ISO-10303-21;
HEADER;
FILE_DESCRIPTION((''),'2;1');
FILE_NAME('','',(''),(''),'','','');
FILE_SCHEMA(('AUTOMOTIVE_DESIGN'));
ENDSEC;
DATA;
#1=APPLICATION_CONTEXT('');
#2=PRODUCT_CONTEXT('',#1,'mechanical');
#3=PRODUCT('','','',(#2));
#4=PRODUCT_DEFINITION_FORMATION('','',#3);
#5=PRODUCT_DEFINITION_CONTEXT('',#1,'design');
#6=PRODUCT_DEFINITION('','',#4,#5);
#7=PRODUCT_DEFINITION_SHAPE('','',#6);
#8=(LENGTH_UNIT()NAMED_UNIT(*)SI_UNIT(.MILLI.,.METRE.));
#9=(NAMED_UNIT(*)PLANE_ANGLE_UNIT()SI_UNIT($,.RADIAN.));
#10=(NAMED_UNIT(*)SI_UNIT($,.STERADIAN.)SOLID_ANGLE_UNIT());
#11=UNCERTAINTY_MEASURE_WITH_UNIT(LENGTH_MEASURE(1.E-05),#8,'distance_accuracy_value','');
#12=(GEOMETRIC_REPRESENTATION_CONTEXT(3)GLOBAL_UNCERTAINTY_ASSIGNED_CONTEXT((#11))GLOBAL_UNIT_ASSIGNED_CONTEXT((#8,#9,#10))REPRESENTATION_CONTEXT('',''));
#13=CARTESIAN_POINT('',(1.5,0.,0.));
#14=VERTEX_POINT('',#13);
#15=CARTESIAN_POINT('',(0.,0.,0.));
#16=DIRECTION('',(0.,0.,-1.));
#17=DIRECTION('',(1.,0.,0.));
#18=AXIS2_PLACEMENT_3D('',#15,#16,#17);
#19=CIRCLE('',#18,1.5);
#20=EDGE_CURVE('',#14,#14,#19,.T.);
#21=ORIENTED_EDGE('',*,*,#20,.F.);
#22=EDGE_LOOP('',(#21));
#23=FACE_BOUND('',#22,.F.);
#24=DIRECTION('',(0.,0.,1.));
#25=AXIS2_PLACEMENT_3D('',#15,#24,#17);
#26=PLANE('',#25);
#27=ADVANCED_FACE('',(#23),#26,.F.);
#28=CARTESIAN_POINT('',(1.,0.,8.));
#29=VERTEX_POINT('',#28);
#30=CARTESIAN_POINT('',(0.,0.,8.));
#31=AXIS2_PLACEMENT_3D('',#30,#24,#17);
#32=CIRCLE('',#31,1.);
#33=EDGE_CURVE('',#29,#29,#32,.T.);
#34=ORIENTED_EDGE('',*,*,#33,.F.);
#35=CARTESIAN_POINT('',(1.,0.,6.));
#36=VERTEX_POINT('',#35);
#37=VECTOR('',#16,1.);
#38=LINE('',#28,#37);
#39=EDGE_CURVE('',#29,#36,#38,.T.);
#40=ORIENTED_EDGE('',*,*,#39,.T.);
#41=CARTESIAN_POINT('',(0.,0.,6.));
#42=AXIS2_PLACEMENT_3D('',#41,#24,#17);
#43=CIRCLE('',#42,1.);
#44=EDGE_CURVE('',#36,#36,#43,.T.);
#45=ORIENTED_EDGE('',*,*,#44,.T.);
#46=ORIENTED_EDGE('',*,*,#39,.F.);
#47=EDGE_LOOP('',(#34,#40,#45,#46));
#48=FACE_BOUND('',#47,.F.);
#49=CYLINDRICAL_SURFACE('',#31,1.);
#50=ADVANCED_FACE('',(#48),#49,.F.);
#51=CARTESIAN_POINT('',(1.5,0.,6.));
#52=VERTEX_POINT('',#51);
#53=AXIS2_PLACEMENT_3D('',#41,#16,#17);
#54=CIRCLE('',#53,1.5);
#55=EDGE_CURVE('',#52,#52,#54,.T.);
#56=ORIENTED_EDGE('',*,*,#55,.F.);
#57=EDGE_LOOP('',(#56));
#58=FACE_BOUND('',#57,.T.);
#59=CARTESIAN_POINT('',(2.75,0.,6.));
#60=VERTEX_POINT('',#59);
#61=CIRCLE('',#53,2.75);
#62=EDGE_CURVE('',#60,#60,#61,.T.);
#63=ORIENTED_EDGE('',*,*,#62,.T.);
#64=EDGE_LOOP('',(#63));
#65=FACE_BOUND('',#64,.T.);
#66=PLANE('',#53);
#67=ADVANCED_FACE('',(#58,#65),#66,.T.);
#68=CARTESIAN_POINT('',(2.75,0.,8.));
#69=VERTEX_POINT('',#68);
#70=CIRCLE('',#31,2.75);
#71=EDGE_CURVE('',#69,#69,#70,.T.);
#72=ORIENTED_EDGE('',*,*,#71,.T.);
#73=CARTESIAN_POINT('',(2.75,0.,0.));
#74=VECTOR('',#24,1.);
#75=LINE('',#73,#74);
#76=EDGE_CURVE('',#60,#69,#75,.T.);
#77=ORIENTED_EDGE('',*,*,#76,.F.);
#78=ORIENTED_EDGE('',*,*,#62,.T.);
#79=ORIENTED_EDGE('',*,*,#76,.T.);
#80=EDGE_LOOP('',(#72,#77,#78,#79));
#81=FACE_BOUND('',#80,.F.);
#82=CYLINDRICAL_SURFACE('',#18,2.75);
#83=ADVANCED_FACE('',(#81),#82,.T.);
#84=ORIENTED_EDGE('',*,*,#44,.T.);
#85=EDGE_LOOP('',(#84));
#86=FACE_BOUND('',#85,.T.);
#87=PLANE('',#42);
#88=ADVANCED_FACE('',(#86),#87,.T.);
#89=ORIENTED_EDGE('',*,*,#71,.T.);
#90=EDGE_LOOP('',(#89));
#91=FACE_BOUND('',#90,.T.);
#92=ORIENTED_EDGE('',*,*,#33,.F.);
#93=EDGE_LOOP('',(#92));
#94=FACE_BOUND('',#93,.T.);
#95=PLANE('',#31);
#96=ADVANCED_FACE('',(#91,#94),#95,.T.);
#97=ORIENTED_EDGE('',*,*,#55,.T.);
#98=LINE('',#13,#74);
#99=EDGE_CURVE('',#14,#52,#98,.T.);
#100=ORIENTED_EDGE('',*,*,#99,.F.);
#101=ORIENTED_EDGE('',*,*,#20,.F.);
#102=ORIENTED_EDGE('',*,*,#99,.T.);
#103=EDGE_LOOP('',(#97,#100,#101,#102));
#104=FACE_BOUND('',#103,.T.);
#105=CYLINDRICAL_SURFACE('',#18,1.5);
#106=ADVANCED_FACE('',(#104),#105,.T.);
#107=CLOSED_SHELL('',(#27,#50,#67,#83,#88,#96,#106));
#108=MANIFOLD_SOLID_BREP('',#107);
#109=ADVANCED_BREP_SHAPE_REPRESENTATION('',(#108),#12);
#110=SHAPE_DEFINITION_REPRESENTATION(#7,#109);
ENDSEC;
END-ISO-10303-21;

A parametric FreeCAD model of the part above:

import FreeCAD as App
import Part
import Sketcher

V = App.Vector

doc = App.newDocument("Part")
body = doc.addObject("PartDesign::Body", "Body")

sketch1 = doc.addObject("Sketcher::SketchObject", "Sketch")
body.addObject(sketch1)
sketch1.AttachmentSupport = (doc.XY_Plane, [""])
sketch1.MapMode = "FlatFace"
sketch1.addGeometry(Part.Circle(V(0, 0, 0), V(0, 0, 1), 2.75), False)
sketch1.addConstraint([
    Sketcher.Constraint("Coincident", 0, 3, -1, 1),
    Sketcher.Constraint("Diameter", 0, 5.5),
])
pad1 = doc.addObject("PartDesign::Pad", "Pad")
body.addObject(pad1)
pad1.Profile = sketch1
pad1.Length = 8

sketch2 = doc.addObject("Sketcher::SketchObject", "Sketch001")
body.addObject(sketch2)
sketch2.AttachmentSupport = (doc.XY_Plane, [""])
sketch2.MapMode = "FlatFace"
sketch2.addGeometry([
    Part.Circle(V(0, 0, 0), V(0, 0, 1), 2.75),
    Part.Circle(V(0, 0, 0), V(0, 0, 1), 1.5),
], False)
sketch2.addConstraint([
    Sketcher.Constraint("Coincident", 0, 3, -1, 1),
    Sketcher.Constraint("Coincident", 1, 3, -1, 1),
    Sketcher.Constraint("Diameter", 1, 3.0),
    Sketcher.Constraint("Diameter", 0, 5.5),
])
pocket1 = doc.addObject("PartDesign::Pocket", "Pocket")
body.addObject(pocket1)
pocket1.Profile = sketch2
pocket1.Length = 6
pocket1.Reversed = True

sketch3 = doc.addObject("Sketcher::SketchObject", "Sketch002")
body.addObject(sketch3)
sketch3.AttachmentSupport = (doc.XY_Plane, [""])
sketch3.MapMode = "FlatFace"
sketch3.AttachmentOffset = App.Placement(V(0, 0, 8), App.Rotation())
sketch3.addGeometry(Part.Circle(V(0, 0, 0), V(0, 0, 1), 1), False)
sketch3.addConstraint([
    Sketcher.Constraint("Coincident", 0, 3, -1, 1),
    Sketcher.Constraint("Diameter", 0, 2.0),
])
pocket2 = doc.addObject("PartDesign::Pocket", "Pocket001")
body.addObject(pocket2)
pocket2.Profile = sketch3
pocket2.Length = 2

doc.recompute()
